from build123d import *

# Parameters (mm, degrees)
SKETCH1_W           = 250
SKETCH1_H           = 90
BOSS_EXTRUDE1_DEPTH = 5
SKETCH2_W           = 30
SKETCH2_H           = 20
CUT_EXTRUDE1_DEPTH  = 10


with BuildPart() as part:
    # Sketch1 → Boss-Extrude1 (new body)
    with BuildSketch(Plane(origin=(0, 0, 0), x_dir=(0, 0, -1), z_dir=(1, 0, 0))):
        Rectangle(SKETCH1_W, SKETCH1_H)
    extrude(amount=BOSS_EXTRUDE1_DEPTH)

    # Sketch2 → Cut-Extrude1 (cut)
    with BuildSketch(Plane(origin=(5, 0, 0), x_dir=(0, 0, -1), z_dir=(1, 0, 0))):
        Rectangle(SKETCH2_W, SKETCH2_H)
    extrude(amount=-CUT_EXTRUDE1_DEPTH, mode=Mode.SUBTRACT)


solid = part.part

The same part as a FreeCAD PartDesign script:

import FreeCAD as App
import Part
import Sketcher


def add_polygon(sketch, points):
    """Adds a closed chain of lines whose ends are joined by coincident constraints."""
    first, n = sketch.GeometryCount, len(points)
    for a, b in zip(points, points[1:] + points[:1]):
        sketch.addGeometry(Part.LineSegment(App.Vector(*a, 0), App.Vector(*b, 0)), False)
    for i in range(n):
        sketch.addConstraint(Sketcher.Constraint("Coincident", first + i, 2, first + (i + 1) % n, 1))

doc = App.newDocument("Part")
body = doc.addObject("PartDesign::Body", "Body")

# Sketch on YZ plane
sketch1 = body.newObject("Sketcher::SketchObject", "Sketch")
sketch1.AttachmentSupport = (doc.getObject("YZ_Plane"), [""])
sketch1.MapMode = "FlatFace"
add_polygon(sketch1, [(45, 125), (-45, 125), (-45, -125), (45, -125)])  # lines 0-3
sketch1.addConstraint([
    Sketcher.Constraint("Horizontal", 0),
    Sketcher.Constraint("Vertical", 1),
    Sketcher.Constraint("Horizontal", 2),
    Sketcher.Constraint("Vertical", 3),
    Sketcher.Constraint("Symmetric", 0, 2, 2, 2, -1, 1),
    Sketcher.Constraint("DistanceX", 0, 2, 0, 1, 90.0),
    Sketcher.Constraint("DistanceY", 1, 2, 1, 1, 250.0),
])
pad1 = body.newObject("PartDesign::Pad", "Pad")
pad1.Profile = sketch1
pad1.Length = 5

# Sketch on YZ plane
sketch2 = body.newObject("Sketcher::SketchObject", "Sketch001")
sketch2.AttachmentSupport = (doc.getObject("YZ_Plane"), [""])
sketch2.MapMode = "FlatFace"
sketch2.AttachmentOffset = App.Placement(App.Vector(0, 0, 5), App.Rotation())
add_polygon(sketch2, [(10, 15), (-10, 15), (-10, -15), (10, -15)])  # lines 0-3
sketch2.addConstraint([
    Sketcher.Constraint("Horizontal", 0),
    Sketcher.Constraint("Vertical", 1),
    Sketcher.Constraint("Horizontal", 2),
    Sketcher.Constraint("Vertical", 3),
    Sketcher.Constraint("Symmetric", 0, 2, 2, 2, -1, 1),
    Sketcher.Constraint("DistanceX", 0, 2, 0, 1, 20.0),
    Sketcher.Constraint("DistanceY", 1, 2, 1, 1, 30.0),
])
pocket1 = body.newObject("PartDesign::Pocket", "Pocket")
pocket1.Profile = sketch2
pocket1.Length = 10

doc.recompute()
